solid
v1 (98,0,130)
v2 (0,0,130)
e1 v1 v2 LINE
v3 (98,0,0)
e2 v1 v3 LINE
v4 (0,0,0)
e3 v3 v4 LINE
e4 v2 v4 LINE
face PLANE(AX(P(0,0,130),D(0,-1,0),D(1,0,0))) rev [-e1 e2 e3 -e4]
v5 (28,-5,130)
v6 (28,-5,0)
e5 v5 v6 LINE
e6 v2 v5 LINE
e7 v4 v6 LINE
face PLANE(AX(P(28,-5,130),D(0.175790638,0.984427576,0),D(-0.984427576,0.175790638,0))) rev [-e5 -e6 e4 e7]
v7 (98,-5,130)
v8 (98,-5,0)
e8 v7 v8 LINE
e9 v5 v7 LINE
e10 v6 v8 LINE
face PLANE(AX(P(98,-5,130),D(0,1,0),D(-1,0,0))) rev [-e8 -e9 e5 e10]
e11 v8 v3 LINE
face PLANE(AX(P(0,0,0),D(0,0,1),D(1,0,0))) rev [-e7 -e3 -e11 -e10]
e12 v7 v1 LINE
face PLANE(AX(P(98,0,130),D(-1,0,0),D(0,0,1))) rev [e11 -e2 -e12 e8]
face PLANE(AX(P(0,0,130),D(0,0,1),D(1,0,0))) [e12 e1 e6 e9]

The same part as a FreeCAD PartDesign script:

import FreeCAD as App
import Part
import Sketcher
from FreeCAD import Vector
Q = App.Units.Quantity

doc = App.newDocument("Part")
body = doc.addObject("PartDesign::Body", "Body")

sketch1 = body.newObject("Sketcher::SketchObject", "Sketch")
sketch1.AttachmentSupport = (doc.getObject("XY_Plane"), [""])
sketch1.MapMode = "FlatFace"
sketch1.addGeometry([
    Part.LineSegment(Vector(98, 0, 0), Vector(0, 0, 0)),
    Part.LineSegment(Vector(0, 0, 0), Vector(28, -5, 0)),
    Part.LineSegment(Vector(28, -5, 0), Vector(98, -5, 0)),
    Part.LineSegment(Vector(98, -5, 0), Vector(98, 0, 0)),
], False)
sketch1.addConstraint([
    Sketcher.Constraint("Coincident", 0, 2, 1, 1),
    Sketcher.Constraint("Coincident", 1, 2, 2, 1),
    Sketcher.Constraint("Coincident", 2, 2, 3, 1),
    Sketcher.Constraint("Coincident", 3, 2, 0, 1),
    Sketcher.Constraint("Horizontal", 0),
    Sketcher.Constraint("Horizontal", 2),
    Sketcher.Constraint("Vertical", 3),
    Sketcher.Constraint("Coincident", 0, 2, -1, 1),
    Sketcher.Constraint("DistanceX", 0, 2, 0, 1, Q("98 mm")),
    Sketcher.Constraint("DistanceX", 2, 1, 2, 2, Q("70 mm")),
    Sketcher.Constraint("DistanceY", 3, 1, 3, 2, Q("5 mm")),
])
pad1 = body.newObject("PartDesign::Pad", "Pad")
pad1.Profile = sketch1
pad1.Length = 130

doc.recompute()
